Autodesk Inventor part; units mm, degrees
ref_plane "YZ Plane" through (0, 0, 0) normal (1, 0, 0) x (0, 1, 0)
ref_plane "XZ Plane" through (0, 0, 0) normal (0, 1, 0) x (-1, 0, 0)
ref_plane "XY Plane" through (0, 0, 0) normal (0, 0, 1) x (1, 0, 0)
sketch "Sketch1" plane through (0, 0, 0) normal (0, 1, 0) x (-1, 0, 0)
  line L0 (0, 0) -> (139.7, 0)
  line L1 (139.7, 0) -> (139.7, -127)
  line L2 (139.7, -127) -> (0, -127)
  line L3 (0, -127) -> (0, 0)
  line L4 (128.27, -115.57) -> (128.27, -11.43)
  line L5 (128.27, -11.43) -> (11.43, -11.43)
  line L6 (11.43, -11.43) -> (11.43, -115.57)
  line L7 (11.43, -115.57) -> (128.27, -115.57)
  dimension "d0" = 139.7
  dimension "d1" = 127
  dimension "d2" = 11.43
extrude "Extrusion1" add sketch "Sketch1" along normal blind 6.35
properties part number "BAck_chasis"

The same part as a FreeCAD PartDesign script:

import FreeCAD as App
import Part
import Sketcher
from FreeCAD import Vector
Q = App.Units.Quantity

doc = App.newDocument("Part")
body = doc.addObject("PartDesign::Body", "Body")

# Sketch on XZ plane
sketch1 = body.newObject("Sketcher::SketchObject", "Sketch")
sketch1.AttachmentSupport = (doc.getObject("XZ_Plane"), [""])
sketch1.MapMode = "FlatFace"
sketch1.addGeometry([
    Part.LineSegment(Vector(-139.7, 0, 0), Vector(0, 0, 0)),  # 0
    Part.LineSegment(Vector(0, 0, 0), Vector(0, -127, 0)),  # 1
    Part.LineSegment(Vector(0, -127, 0), Vector(-139.7, -127, 0)),  # 2
    Part.LineSegment(Vector(-139.7, -127, 0), Vector(-139.7, 0, 0)),  # 3
    Part.LineSegment(Vector(-128.27, -11.43, 0), Vector(-128.27, -115.57, 0)),  # 4
    Part.LineSegment(Vector(-128.27, -115.57, 0), Vector(-11.43, -115.57, 0)),  # 5
    Part.LineSegment(Vector(-11.43, -115.57, 0), Vector(-11.43, -11.43, 0)),  # 6
    Part.LineSegment(Vector(-11.43, -11.43, 0), Vector(-128.27, -11.43, 0)),  # 7
], False)
sketch1.addConstraint([
    Sketcher.Constraint("Coincident", 0, 2, 1, 1),
    Sketcher.Constraint("Coincident", 1, 2, 2, 1),
    Sketcher.Constraint("Coincident", 2, 2, 3, 1),
    Sketcher.Constraint("Coincident", 3, 2, 0, 1),
    Sketcher.Constraint("Coincident", 4, 2, 5, 1),
    Sketcher.Constraint("Coincident", 5, 2, 6, 1),
    Sketcher.Constraint("Coincident", 6, 2, 7, 1),
    Sketcher.Constraint("Coincident", 7, 2, 4, 1),
    Sketcher.Constraint("Horizontal", 0),
    Sketcher.Constraint("Vertical", 1),
    Sketcher.Constraint("Horizontal", 2),
    Sketcher.Constraint("Vertical", 3),
    Sketcher.Constraint("Vertical", 4),
    Sketcher.Constraint("Horizontal", 5),
    Sketcher.Constraint("Vertical", 6),
    Sketcher.Constraint("Horizontal", 7),
    Sketcher.Constraint("Coincident", 0, 2, -1, 1),
    Sketcher.Constraint("DistanceY", 1, 2, 1, 1, Q("5 in")),
    Sketcher.Constraint("DistanceX", 0, 1, 0, 2, Q("5.5 in")),
    Sketcher.Constraint("DistanceX", 5, 2, -1, 1, Q("0.45 in")),
    Sketcher.Constraint("DistanceY", 6, 2, -1, 1, Q("0.45 in")),
    Sketcher.Constraint("DistanceX", 2, 2, 4, 2, Q("0.45 in")),
    Sketcher.Constraint("DistanceY", 2, 2, 4, 2, Q("0.45 in")),
])
pad1 = body.newObject("PartDesign::Pad", "Pad")
pad1.Profile = sketch1
pad1.Length = Q("0.25 in")
pad1.Reversed = True

doc.recompute()
